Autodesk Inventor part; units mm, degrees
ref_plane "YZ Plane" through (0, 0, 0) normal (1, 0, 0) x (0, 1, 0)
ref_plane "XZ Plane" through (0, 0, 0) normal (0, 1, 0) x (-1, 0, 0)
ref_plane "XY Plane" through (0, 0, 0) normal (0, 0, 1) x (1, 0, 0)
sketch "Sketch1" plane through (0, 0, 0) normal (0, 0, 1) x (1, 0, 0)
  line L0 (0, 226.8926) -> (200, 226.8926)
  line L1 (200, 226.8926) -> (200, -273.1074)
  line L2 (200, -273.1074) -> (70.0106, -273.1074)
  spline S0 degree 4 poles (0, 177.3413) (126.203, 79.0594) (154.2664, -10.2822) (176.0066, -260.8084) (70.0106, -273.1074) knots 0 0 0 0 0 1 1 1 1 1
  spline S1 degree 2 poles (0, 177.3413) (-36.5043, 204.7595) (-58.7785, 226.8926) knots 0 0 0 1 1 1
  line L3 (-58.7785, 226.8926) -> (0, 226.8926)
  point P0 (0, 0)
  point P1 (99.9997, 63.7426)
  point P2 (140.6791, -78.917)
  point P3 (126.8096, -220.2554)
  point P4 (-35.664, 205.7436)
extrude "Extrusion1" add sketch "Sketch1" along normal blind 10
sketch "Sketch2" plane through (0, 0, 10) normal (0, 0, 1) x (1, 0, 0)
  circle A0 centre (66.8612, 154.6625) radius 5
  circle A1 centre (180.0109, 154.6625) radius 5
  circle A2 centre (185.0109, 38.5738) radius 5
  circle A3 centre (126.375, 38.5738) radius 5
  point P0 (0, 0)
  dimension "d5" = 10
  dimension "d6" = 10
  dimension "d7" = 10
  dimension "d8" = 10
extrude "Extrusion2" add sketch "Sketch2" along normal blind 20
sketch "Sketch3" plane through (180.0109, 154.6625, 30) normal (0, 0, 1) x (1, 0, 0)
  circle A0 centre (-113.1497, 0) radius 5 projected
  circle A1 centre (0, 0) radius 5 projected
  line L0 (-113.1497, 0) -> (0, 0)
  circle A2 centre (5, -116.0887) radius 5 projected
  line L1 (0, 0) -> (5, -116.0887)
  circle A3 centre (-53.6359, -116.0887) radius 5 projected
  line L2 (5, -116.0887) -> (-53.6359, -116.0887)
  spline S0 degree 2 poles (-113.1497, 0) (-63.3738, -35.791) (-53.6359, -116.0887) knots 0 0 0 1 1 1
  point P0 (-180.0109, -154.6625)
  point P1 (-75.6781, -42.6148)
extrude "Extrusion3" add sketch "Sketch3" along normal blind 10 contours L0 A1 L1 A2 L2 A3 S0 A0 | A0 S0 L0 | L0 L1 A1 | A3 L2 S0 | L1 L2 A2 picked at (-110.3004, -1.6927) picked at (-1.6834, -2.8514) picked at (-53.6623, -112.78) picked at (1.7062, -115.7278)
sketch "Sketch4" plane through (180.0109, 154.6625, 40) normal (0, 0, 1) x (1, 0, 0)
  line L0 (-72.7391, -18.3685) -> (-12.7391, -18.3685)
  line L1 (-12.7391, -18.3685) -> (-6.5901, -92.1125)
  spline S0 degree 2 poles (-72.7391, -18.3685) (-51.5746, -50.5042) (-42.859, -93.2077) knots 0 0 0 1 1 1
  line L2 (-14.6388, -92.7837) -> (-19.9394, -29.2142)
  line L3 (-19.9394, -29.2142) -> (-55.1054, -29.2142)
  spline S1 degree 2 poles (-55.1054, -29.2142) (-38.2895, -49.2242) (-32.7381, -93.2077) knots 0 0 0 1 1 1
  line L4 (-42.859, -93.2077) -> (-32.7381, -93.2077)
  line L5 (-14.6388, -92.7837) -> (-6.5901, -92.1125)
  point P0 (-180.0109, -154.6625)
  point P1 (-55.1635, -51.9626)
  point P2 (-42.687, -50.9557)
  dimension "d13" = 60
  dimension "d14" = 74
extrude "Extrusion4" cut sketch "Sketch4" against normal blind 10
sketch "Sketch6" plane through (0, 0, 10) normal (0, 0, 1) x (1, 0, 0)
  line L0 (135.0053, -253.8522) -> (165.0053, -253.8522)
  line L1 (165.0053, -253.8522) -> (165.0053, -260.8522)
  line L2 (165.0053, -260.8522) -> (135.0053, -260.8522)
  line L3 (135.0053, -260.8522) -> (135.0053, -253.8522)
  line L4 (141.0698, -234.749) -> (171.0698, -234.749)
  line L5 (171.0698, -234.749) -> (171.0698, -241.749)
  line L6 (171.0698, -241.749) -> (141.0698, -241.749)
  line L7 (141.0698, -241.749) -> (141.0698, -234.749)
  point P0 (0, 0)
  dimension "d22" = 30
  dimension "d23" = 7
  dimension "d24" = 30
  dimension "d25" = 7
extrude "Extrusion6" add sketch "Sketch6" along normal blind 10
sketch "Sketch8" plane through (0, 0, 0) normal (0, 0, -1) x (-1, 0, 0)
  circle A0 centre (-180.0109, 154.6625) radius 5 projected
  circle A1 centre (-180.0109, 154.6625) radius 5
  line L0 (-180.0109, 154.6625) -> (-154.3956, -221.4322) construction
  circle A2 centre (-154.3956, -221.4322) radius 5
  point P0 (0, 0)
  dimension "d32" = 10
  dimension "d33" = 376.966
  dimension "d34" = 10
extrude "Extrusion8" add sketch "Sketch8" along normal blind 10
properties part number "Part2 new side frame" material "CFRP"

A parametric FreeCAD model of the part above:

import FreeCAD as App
import Part
import Sketcher

V = App.Vector


def add_polygon(sketch, points):
    """Adds a closed chain of lines whose ends are joined by coincident constraints."""
    first, n = sketch.GeometryCount, len(points)
    for a, b in zip(points, points[1:] + points[:1]):
        sketch.addGeometry(Part.LineSegment(App.Vector(*a, 0), App.Vector(*b, 0)), False)
    for i in range(n):
        sketch.addConstraint(Sketcher.Constraint("Coincident", first + i, 2, first + (i + 1) % n, 1))

doc = App.newDocument("Part")
body = doc.addObject("PartDesign::Body", "Body")

# Sketch on XY plane
sketch1 = body.newObject("Sketcher::SketchObject", "Sketch")
sketch1.AttachmentSupport = (doc.getObject("XY_Plane"), [""])
sketch1.MapMode = "FlatFace"
sketch1.addGeometry(Part.LineSegment(V(200, 226.8926, 0), V(-58.7785, 226.8926, 0)), False)
sketch1.addGeometry(Part.BSplineCurve([V(0, 177.3413, 0), V(-36.5043, 204.7595, 0), V(-58.7785, 226.8926, 0)], [3, 3], [0, 1], False, 2, [1, 1, 1], False), False)
sketch1.addGeometry(Part.BSplineCurve([V(0, 177.3413, 0), V(126.203, 79.0594, 0), V(154.2664, -10.2822, 0), V(176.0066, -260.8084, 0), V(70.0106, -273.1074, 0)], [5, 5], [0, 1], False, 4, [1, 1, 1, 1, 1], False), False)
sketch1.addGeometry(Part.LineSegment(V(70.0106, -273.1074, 0), V(200, -273.1074, 0)), False)
sketch1.addGeometry(Part.LineSegment(V(200, -273.1074, 0), V(200, 226.8926, 0)), False)
sketch1.addConstraint(Sketcher.Constraint("Block", 1))
sketch1.addConstraint(Sketcher.Constraint("Block", 2))
sketch1.addConstraint(Sketcher.Constraint("Coincident", 0, 2, 1, 2))
sketch1.addConstraint(Sketcher.Constraint("Coincident", 2, 2, 3, 1))
sketch1.addConstraint(Sketcher.Constraint("Coincident", 3, 2, 4, 1))
sketch1.addConstraint(Sketcher.Constraint("Coincident", 4, 2, 0, 1))
sketch1.addConstraint(Sketcher.Constraint("Horizontal", 0))
sketch1.addConstraint(Sketcher.Constraint("Horizontal", 3))
sketch1.addConstraint(Sketcher.Constraint("Vertical", 4))
sketch1.addConstraint(Sketcher.Constraint("DistanceX", -1, 1, 3, 2, 200.0))
pad1 = body.newObject("PartDesign::Pad", "Pad")
pad1.Profile = sketch1
pad1.Length = 10

# Sketch on XY plane
sketch2 = body.newObject("Sketcher::SketchObject", "Sketch001")
sketch2.AttachmentSupport = (doc.getObject("XY_Plane"), [""])
sketch2.MapMode = "FlatFace"
sketch2.AttachmentOffset = App.Placement(V(0, 0, 10), App.Rotation())
sketch2.addGeometry(Part.Circle(V(66.8612, 154.6625, 0), V(0, 0, 1), 5), False)
sketch2.addGeometry(Part.Circle(V(180.0109, 154.6625, 0), V(0, 0, 1), 5), False)
sketch2.addGeometry(Part.Circle(V(185.0109, 38.5738, 0), V(0, 0, 1), 5), False)
sketch2.addGeometry(Part.Circle(V(126.375, 38.5738, 0), V(0, 0, 1), 5), False)
sketch2.addConstraint(Sketcher.Constraint("Equal", 0, 1))
sketch2.addConstraint(Sketcher.Constraint("Equal", 1, 2))
sketch2.addConstraint(Sketcher.Constraint("Equal", 2, 3))
sketch2.addConstraint(Sketcher.Constraint("Horizontal", 0, 3, 1, 3))
sketch2.addConstraint(Sketcher.Constraint("Horizontal", 2, 3, 3, 3))
sketch2.addConstraint(Sketcher.Constraint("Diameter", 0, 10.0))
sketch2.addConstraint(Sketcher.Constraint("DistanceX", 1, 3, 2, 3, 5.0))
sketch2.addConstraint(Sketcher.Constraint("DistanceX", -1, 1, 1, 3, 180.011))
sketch2.addConstraint(Sketcher.Constraint("DistanceX", -1, 1, 3, 3, 126.375))
sketch2.addConstraint(Sketcher.Constraint("DistanceX", -1, 1, 0, 3, 66.8612))
sketch2.addConstraint(Sketcher.Constraint("DistanceY", -1, 1, 0, 3, 154.6625))
sketch2.addConstraint(Sketcher.Constraint("DistanceY", -1, 1, 2, 3, 38.5738))
pad2 = body.newObject("PartDesign::Pad", "Pad001")
pad2.Profile = sketch2
pad2.Length = 20

# Sketch on XY plane
sketch3 = body.newObject("Sketcher::SketchObject", "Sketch002")
sketch3.AttachmentSupport = (doc.getObject("XY_Plane"), [""])
sketch3.MapMode = "FlatFace"
sketch3.AttachmentOffset = App.Placement(V(0, 0, 30), App.Rotation())
sketch3.addGeometry(Part.BSplineCurve([V(66.8612, 154.6625, 0), V(68.894978, 153.200127, 0), V(70.861915, 151.663453, 0)], [3, 3], [0, 0.040858681], False, 2, [1, 1, 1], False), False)
sketch3.addGeometry(Part.BSplineCurve([V(70.861915, 151.663453, 0), V(115.535778, 116.761895, 0), V(125.729644, 43.531977, 0)], [3, 3], [0.040858681, 0.968857504], False, 2, [1, 1, 1], False), False)
sketch3.addGeometry(Part.BSplineCurve([V(125.729644, 43.531977, 0), V(126.071737, 41.074471, 0), V(126.375, 38.5738, 0)], [3, 3], [0.968857504, 1], False, 2, [1, 1, 1], False), False)
sketch3.addGeometry(Part.LineSegment(V(126.375, 38.5738, 0), V(185.0109, 38.5738, 0)), False)
sketch3.addGeometry(Part.LineSegment(V(185.0109, 38.5738, 0), V(180.0109, 154.6625, 0)), False)
sketch3.addGeometry(Part.LineSegment(V(180.0109, 154.6625, 0), V(66.8612, 154.6625, 0)), False)
sketch3.addConstraint(Sketcher.Constraint("Block", 0))
sketch3.addConstraint(Sketcher.Constraint("Block", 1))
sketch3.addConstraint(Sketcher.Constraint("Block", 2))
sketch3.addConstraint(Sketcher.Constraint("Coincident", 2, 2, 3, 1))
sketch3.addConstraint(Sketcher.Constraint("Coincident", 3, 2, 4, 1))
sketch3.addConstraint(Sketcher.Constraint("Coincident", 4, 2, 5, 1))
sketch3.addConstraint(Sketcher.Constraint("Coincident", 5, 2, 0, 1))
sketch3.addConstraint(Sketcher.Constraint("Horizontal", 3))
sketch3.addConstraint(Sketcher.Constraint("Horizontal", 5))
sketch3.addConstraint(Sketcher.Constraint("DistanceX", 4, 2, 3, 2, 5.0))
sketch3.addConstraint(Sketcher.Constraint("DistanceX", 3, 1, 3, 2, 58.636))
pad3 = body.newObject("PartDesign::Pad", "Pad002")
pad3.Profile = sketch3
pad3.Length = 10

# Sketch on XY plane
sketch4 = body.newObject("Sketcher::SketchObject", "Sketch003")
sketch4.AttachmentSupport = (doc.getObject("XY_Plane"), [""])
sketch4.MapMode = "FlatFace"
sketch4.AttachmentOffset = App.Placement(V(0, 0, 40), App.Rotation())
sketch4.addGeometry(Part.LineSegment(V(167.2718, 136.294, 0), V(107.2718, 136.294, 0)), False)
sketch4.addGeometry(Part.BSplineCurve([V(107.2718, 136.294, 0), V(128.4363, 104.1583, 0), V(137.1519, 61.4548, 0)], [3, 3], [0, 1], False, 2, [1, 1, 1], False), False)
sketch4.addGeometry(Part.LineSegment(V(137.1519, 61.4548, 0), V(147.2728, 61.4548, 0)), False)
sketch4.addGeometry(Part.BSplineCurve([V(124.9055, 125.4483, 0), V(141.7214, 105.4383, 0), V(147.2728, 61.4548, 0)], [3, 3], [0, 1], False, 2, [1, 1, 1], False), False)
sketch4.addGeometry(Part.LineSegment(V(124.9055, 125.4483, 0), V(160.0715, 125.4483, 0)), False)
sketch4.addGeometry(Part.LineSegment(V(160.0715, 125.4483, 0), V(165.3721, 61.8788, 0)), False)
sketch4.addGeometry(Part.LineSegment(V(165.3721, 61.8788, 0), V(173.4208, 62.55, 0)), False)
sketch4.addGeometry(Part.LineSegment(V(173.4208, 62.55, 0), V(167.2718, 136.294, 0)), False)
sketch4.addConstraint(Sketcher.Constraint("Block", 1))
sketch4.addConstraint(Sketcher.Constraint("Block", 3))
sketch4.addConstraint(Sketcher.Constraint("Coincident", 0, 2, 1, 1))
sketch4.addConstraint(Sketcher.Constraint("Coincident", 1, 2, 2, 1))
sketch4.addConstraint(Sketcher.Constraint("Coincident", 2, 2, 3, 2))
sketch4.addConstraint(Sketcher.Constraint("Coincident", 3, 1, 4, 1))
sketch4.addConstraint(Sketcher.Constraint("Coincident", 4, 2, 5, 1))
sketch4.addConstraint(Sketcher.Constraint("Coincident", 5, 2, 6, 1))
sketch4.addConstraint(Sketcher.Constraint("Coincident", 6, 2, 7, 1))
sketch4.addConstraint(Sketcher.Constraint("Coincident", 7, 2, 0, 1))
sketch4.addConstraint(Sketcher.Constraint("Horizontal", 0))
sketch4.addConstraint(Sketcher.Constraint("Horizontal", 4))
sketch4.addConstraint(Sketcher.Constraint("DistanceX", 0, 2, 0, 1, 60.0))
sketch4.addConstraint(Sketcher.Constraint("Distance", 7, 74.0))
sketch4.addConstraint(Sketcher.Constraint("Distance", 5, 63.79))
sketch4.addConstraint(Sketcher.Constraint("DistanceX", 4, 1, 4, 2, 35.166))
sketch4.addConstraint(Sketcher.Constraint("DistanceY", -1, 1, 6, 2, 62.55))
sketch4.addConstraint(Sketcher.Constraint("DistanceX", -1, 1, 5, 2, 165.372))
pocket1 = body.newObject("PartDesign::Pocket", "Pocket")
pocket1.Profile = sketch4
pocket1.Length = 10

# Sketch on XY plane
sketch5 = body.newObject("Sketcher::SketchObject", "Sketch004")
sketch5.AttachmentSupport = (doc.getObject("XY_Plane"), [""])
sketch5.MapMode = "FlatFace"
sketch5.AttachmentOffset = App.Placement(V(0, 0, 10), App.Rotation())
add_polygon(sketch5, [(165.0053, -253.8522), (135.0053, -253.8522), (135.0053, -260.8522), (165.0053, -260.8522)])  # lines 0-3
add_polygon(sketch5, [(171.0698, -234.749), (141.0698, -234.749), (141.0698, -241.749), (171.0698, -241.749)])  # lines 4-7
sketch5.addConstraint(Sketcher.Constraint("Horizontal", 0))
sketch5.addConstraint(Sketcher.Constraint("Vertical", 1))
sketch5.addConstraint(Sketcher.Constraint("Horizontal", 2))
sketch5.addConstraint(Sketcher.Constraint("Vertical", 3))
sketch5.addConstraint(Sketcher.Constraint("Horizontal", 4))
sketch5.addConstraint(Sketcher.Constraint("Vertical", 5))
sketch5.addConstraint(Sketcher.Constraint("Horizontal", 6))
sketch5.addConstraint(Sketcher.Constraint("Vertical", 7))
sketch5.addConstraint(Sketcher.Constraint("Equal", 2, 4))
sketch5.addConstraint(Sketcher.Constraint("Equal", 3, 5))
sketch5.addConstraint(Sketcher.Constraint("DistanceX", 0, 2, 0, 1, 30.0))
sketch5.addConstraint(Sketcher.Constraint("DistanceY", 1, 2, 1, 1, 7.0))
sketch5.addConstraint(Sketcher.Constraint("DistanceY", 4, 2, -1, 1, 234.749))
sketch5.addConstraint(Sketcher.Constraint("DistanceX", -1, 1, 0, 2, 135.0053))
sketch5.addConstraint(Sketcher.Constraint("DistanceY", 0, 2, -1, 1, 253.8522))
sketch5.addConstraint(Sketcher.Constraint("DistanceX", -1, 1, 4, 2, 141.0698))
pad4 = body.newObject("PartDesign::Pad", "Pad003")
pad4.Profile = sketch5
pad4.Length = 10

# Sketch on XY plane
sketch6 = body.newObject("Sketcher::SketchObject", "Sketch005")
sketch6.AttachmentSupport = (doc.getObject("XY_Plane"), [""])
sketch6.MapMode = "FlatFace"
sketch6.addGeometry(Part.Circle(V(180.0109, 154.6625, 0), V(0, 0, 1), 5), False)
sketch6.addGeometry(Part.Circle(V(154.3956, -221.4322, 0), V(0, 0, 1), 5), False)
sketch6.addConstraint(Sketcher.Constraint("Equal", 0, 1))
sketch6.addConstraint(Sketcher.Constraint("Diameter", 0, 10.0))
sketch6.addConstraint(Sketcher.Constraint("DistanceX", -1, 1, 0, 3, 180.011))
sketch6.addConstraint(Sketcher.Constraint("DistanceY", -1, 1, 0, 3, 154.6625))
sketch6.addConstraint(Sketcher.Constraint("DistanceX", -1, 1, 1, 3, 154.3956))
sketch6.addConstraint(Sketcher.Constraint("DistanceY", 1, 3, -1, 1, 221.4322))
pad5 = body.newObject("PartDesign::Pad", "Pad004")
pad5.Profile = sketch6
pad5.Length = 10
pad5.Reversed = True

doc.recompute()
